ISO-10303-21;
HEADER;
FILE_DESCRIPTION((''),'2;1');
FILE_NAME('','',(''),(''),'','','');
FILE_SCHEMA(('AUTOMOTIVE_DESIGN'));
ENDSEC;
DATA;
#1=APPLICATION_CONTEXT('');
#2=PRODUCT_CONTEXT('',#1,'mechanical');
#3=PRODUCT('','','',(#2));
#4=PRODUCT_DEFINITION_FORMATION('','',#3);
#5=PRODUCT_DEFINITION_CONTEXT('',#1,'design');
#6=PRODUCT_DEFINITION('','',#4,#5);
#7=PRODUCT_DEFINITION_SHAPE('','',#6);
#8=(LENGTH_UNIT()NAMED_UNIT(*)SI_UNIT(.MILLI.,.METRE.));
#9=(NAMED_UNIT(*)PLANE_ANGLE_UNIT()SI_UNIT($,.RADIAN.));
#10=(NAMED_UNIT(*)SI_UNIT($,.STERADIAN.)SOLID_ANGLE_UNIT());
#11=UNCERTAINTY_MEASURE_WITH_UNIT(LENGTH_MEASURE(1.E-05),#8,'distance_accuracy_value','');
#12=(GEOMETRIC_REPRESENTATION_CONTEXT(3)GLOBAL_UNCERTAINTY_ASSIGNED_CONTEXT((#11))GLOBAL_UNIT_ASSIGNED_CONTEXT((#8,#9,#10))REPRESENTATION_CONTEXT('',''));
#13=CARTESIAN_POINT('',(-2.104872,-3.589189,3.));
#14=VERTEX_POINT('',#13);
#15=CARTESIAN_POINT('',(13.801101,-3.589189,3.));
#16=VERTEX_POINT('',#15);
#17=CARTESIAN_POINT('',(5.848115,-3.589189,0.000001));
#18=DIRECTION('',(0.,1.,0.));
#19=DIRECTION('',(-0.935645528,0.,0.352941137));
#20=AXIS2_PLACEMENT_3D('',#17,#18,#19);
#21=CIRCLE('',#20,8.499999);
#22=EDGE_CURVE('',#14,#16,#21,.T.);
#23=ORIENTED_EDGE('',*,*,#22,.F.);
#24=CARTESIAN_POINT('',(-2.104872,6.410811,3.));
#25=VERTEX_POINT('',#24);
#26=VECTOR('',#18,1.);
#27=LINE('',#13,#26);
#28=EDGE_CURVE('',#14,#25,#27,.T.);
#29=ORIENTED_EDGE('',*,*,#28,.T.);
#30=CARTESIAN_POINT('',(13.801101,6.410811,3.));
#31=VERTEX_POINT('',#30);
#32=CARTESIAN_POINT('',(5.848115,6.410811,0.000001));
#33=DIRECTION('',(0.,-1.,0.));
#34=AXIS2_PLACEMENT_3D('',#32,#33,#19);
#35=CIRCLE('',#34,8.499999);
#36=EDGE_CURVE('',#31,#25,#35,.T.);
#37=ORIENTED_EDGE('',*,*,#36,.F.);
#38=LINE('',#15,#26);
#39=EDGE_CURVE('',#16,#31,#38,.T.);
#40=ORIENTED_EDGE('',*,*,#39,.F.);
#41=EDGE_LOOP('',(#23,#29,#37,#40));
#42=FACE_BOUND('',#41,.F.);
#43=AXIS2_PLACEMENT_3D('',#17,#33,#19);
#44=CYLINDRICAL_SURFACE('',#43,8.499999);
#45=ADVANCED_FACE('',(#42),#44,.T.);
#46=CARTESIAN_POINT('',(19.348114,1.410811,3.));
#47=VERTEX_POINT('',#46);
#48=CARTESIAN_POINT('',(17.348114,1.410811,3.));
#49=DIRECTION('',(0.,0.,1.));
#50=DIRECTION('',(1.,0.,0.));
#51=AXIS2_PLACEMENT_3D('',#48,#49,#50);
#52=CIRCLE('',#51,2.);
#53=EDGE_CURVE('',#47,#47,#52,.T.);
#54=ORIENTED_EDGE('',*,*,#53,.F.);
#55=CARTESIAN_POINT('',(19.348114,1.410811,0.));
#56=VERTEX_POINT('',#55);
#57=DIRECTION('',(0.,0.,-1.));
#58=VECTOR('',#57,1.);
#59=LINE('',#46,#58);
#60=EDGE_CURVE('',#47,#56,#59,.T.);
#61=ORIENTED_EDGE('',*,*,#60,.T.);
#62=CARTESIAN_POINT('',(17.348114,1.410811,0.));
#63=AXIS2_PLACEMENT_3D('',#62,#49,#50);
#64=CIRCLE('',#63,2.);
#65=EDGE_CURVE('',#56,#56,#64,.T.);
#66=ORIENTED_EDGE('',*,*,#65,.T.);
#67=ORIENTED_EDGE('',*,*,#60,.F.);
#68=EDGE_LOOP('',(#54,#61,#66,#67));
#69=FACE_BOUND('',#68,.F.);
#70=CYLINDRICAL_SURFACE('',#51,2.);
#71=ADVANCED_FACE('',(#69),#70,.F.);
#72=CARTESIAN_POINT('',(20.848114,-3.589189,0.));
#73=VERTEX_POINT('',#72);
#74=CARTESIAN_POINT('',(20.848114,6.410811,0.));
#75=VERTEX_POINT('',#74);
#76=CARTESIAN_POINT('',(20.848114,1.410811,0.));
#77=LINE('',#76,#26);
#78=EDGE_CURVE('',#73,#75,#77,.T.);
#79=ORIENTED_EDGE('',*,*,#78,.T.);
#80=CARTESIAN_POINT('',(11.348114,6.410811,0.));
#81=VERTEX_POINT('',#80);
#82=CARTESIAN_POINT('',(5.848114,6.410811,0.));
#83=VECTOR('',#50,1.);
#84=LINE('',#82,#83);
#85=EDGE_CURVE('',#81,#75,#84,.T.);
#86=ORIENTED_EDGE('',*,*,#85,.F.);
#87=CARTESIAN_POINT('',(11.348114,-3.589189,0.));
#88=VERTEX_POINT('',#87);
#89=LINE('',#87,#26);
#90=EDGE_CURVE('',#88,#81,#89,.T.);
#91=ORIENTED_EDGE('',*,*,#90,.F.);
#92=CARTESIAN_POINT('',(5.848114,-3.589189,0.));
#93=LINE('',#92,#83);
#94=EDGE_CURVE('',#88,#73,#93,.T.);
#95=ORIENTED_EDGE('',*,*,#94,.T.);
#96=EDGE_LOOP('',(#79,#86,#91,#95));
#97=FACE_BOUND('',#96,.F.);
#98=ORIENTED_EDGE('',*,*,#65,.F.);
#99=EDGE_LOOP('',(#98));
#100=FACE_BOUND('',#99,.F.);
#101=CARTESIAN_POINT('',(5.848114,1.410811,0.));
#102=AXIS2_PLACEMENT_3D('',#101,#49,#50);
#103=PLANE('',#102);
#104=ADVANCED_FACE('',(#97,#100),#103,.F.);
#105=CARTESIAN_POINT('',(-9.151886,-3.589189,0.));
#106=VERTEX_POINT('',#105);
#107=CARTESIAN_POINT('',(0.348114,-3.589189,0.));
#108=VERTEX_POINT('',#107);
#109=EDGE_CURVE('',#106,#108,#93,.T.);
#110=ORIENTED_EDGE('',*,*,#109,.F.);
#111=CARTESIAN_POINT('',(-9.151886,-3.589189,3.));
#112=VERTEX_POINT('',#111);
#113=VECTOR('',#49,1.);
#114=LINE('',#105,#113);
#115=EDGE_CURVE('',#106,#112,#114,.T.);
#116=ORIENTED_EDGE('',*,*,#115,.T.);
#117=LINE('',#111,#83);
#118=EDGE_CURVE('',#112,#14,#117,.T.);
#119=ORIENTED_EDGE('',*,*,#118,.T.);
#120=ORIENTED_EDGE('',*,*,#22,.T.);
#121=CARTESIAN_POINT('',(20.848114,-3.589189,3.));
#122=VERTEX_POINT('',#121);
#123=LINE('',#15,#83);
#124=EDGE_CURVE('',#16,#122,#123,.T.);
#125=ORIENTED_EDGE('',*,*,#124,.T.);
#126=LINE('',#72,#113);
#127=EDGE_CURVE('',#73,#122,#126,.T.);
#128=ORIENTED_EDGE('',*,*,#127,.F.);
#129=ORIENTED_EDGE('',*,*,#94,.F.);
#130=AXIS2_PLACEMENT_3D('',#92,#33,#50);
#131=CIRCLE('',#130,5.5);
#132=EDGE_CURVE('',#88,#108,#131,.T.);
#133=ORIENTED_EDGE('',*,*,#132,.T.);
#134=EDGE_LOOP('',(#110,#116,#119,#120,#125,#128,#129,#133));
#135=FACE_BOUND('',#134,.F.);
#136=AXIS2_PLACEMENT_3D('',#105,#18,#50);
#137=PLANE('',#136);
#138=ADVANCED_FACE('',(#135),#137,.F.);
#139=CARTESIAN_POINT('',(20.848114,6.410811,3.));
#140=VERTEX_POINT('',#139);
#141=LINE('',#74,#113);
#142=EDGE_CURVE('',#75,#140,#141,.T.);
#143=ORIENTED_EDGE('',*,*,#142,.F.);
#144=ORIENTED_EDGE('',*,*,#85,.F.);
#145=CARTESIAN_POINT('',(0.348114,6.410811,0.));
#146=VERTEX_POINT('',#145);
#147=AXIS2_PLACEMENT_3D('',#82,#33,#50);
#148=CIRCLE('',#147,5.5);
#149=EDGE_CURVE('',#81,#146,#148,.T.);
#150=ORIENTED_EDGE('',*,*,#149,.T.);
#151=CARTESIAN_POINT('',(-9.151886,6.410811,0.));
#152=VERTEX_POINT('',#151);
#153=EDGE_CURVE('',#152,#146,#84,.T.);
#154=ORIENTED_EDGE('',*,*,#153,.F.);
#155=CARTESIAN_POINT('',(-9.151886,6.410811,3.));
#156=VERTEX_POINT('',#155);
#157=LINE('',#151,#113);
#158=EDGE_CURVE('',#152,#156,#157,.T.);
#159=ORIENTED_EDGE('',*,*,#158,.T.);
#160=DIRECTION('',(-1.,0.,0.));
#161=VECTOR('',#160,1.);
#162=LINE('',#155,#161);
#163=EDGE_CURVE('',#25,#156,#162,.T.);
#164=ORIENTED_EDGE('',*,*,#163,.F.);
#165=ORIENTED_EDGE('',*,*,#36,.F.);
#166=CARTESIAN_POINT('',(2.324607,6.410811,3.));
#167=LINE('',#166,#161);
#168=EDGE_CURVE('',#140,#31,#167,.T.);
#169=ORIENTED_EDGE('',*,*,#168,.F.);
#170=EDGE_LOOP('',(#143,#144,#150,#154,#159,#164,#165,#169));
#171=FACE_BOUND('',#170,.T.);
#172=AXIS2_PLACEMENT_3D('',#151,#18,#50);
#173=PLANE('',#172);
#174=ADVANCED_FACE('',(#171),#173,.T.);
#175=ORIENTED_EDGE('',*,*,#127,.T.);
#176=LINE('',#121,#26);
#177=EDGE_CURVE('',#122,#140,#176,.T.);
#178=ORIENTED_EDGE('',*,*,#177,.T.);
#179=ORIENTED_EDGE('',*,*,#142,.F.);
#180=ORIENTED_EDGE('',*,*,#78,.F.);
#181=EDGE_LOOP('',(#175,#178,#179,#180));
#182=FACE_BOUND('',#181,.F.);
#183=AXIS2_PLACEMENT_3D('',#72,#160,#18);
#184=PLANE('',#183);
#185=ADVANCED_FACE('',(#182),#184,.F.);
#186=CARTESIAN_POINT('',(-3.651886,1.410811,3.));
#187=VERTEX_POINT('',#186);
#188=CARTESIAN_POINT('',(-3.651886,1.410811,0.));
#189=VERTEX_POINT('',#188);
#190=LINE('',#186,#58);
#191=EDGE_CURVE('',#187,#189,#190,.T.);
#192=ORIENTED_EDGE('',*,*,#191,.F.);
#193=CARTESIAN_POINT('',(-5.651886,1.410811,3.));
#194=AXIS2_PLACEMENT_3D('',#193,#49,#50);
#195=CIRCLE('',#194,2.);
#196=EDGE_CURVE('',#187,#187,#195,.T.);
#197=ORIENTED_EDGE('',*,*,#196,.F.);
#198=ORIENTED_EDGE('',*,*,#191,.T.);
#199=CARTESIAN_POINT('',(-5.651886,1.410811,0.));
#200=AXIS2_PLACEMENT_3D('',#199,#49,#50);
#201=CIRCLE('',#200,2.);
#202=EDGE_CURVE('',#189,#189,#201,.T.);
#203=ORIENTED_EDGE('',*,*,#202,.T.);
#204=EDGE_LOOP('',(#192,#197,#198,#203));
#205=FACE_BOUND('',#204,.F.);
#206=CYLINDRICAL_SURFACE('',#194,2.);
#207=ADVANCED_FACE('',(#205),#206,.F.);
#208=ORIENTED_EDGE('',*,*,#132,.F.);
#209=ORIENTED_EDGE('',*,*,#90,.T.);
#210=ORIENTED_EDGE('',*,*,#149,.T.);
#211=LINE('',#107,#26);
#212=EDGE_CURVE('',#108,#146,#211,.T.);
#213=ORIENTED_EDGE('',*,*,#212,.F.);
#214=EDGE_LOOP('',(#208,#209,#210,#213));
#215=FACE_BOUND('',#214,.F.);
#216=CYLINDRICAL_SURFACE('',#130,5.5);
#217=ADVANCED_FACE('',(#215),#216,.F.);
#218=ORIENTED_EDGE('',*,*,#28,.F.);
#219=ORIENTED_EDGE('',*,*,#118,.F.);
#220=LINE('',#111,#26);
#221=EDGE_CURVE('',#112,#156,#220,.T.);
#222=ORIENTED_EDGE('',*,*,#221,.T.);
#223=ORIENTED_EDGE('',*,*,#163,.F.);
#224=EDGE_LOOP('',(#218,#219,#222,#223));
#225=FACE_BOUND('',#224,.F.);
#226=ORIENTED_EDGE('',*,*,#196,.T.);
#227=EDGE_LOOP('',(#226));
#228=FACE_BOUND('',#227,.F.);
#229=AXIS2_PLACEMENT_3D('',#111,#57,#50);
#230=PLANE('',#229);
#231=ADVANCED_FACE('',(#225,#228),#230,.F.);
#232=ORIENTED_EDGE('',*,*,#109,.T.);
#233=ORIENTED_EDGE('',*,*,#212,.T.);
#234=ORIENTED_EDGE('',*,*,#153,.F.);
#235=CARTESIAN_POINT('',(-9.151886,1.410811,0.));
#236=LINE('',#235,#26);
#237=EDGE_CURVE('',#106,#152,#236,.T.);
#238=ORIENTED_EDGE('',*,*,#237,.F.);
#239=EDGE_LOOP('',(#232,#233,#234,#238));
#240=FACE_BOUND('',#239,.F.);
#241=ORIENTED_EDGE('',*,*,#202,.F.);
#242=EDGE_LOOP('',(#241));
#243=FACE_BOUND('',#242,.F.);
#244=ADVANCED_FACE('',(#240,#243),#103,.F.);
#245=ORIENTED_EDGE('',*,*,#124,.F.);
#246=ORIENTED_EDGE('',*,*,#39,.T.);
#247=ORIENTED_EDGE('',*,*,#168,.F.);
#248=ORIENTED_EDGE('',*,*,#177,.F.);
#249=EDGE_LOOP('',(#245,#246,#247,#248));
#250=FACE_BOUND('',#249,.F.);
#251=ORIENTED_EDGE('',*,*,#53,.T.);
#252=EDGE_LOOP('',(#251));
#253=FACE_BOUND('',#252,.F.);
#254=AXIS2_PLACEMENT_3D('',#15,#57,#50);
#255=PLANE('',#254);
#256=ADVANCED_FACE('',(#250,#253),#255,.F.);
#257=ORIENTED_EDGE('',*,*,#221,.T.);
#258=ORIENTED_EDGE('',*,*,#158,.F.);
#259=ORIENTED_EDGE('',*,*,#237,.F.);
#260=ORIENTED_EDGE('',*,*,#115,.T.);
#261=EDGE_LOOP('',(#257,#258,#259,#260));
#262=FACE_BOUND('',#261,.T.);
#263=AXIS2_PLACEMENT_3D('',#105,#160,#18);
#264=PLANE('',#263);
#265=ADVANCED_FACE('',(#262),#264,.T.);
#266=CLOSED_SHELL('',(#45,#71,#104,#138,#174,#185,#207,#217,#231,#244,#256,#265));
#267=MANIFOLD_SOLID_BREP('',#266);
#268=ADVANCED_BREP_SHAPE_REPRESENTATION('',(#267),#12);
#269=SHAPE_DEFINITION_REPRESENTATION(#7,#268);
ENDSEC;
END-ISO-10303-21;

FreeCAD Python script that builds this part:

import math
import FreeCAD as App
import Part
import Sketcher
from FreeCAD import Vector


def add_polygon(sketch, points):
    """Adds a closed chain of lines whose ends are joined by coincident constraints."""
    first, n = sketch.GeometryCount, len(points)
    for a, b in zip(points, points[1:] + points[:1]):
        sketch.addGeometry(Part.LineSegment(App.Vector(*a, 0), App.Vector(*b, 0)), False)
    for i in range(n):
        sketch.addConstraint(Sketcher.Constraint("Coincident", first + i, 2, first + (i + 1) % n, 1))

doc = App.newDocument("Part")
body = doc.addObject("PartDesign::Body", "Body")

# Sketch on XY plane
sketch1 = body.newObject("Sketcher::SketchObject", "Sketch")
sketch1.AttachmentSupport = (doc.getObject("XY_Plane"), [""])
sketch1.MapMode = "FlatFace"
add_polygon(sketch1, [(-9, 6), (-9, -4), (21, -4), (21, 6)])  # lines 0-3
sketch1.addConstraint([
    Sketcher.Constraint("Vertical", 0),
    Sketcher.Constraint("Horizontal", 1),
    Sketcher.Constraint("Vertical", 2),
    Sketcher.Constraint("Horizontal", 3),
    Sketcher.Constraint("DistanceX", 1, 1, 1, 2, 30.0),
    Sketcher.Constraint("DistanceY", 0, 2, 0, 1, 10.0),
    Sketcher.Constraint("DistanceY", 0, 2, -1, 1, 3.589189),
    Sketcher.Constraint("DistanceX", 0, 2, -1, 1, 9.151886),
])
pad1 = body.newObject("PartDesign::Pad", "Pad")
pad1.Profile = sketch1
pad1.Length = 17

# Sketch on XZ plane
sketch2 = body.newObject("Sketcher::SketchObject", "Sketch001")
sketch2.AttachmentSupport = (doc.getObject("XZ_Plane"), [""])
sketch2.MapMode = "FlatFace"
sketch2.AttachmentOffset = App.Placement(Vector(0, 0, 3.589189), App.Rotation())
sketch2.addGeometry([
    Part.ArcOfCircle(Part.Circle(Vector(6, 0, 0), Vector(0, 0, 1), 8), math.radians(21), math.radians(159)),  # 0
    Part.LineSegment(Vector(14, 3, 0), Vector(21, 3, 0)),  # 1
    Part.LineSegment(Vector(21, 3, 0), Vector(21, 17, 0)),  # 2
    Part.LineSegment(Vector(21, 17, 0), Vector(-9, 17, 0)),  # 3
    Part.LineSegment(Vector(-9, 17, 0), Vector(-9, 3, 0)),  # 4
    Part.LineSegment(Vector(-9, 3, 0), Vector(-2, 3, 0)),  # 5
    Part.LineSegment(Vector(0, 0, 0), Vector(11, 0, 0)),  # 6
    Part.ArcOfCircle(Part.Circle(Vector(6, 0, 0), Vector(0, 0, 1), 6), math.radians(0), math.radians(180)),  # 7
], False)
sketch2.addConstraint([
    Sketcher.Constraint("Coincident", 0, 1, 1, 1),
    Sketcher.Constraint("Coincident", 1, 2, 2, 1),
    Sketcher.Constraint("Coincident", 2, 2, 3, 1),
    Sketcher.Constraint("Coincident", 3, 2, 4, 1),
    Sketcher.Constraint("Coincident", 4, 2, 5, 1),
    Sketcher.Constraint("Coincident", 5, 2, 0, 2),
    Sketcher.Constraint("Coincident", 6, 1, 7, 2),
    Sketcher.Constraint("Coincident", 7, 1, 6, 2),
    Sketcher.Constraint("Horizontal", 1),
    Sketcher.Constraint("Vertical", 2),
    Sketcher.Constraint("Horizontal", 3),
    Sketcher.Constraint("Vertical", 4),
    Sketcher.Constraint("Horizontal", 5),
    Sketcher.Constraint("Horizontal", 6),
    Sketcher.Constraint("Coincident", 7, 3, 0, 3),
    Sketcher.Constraint("PointOnObject", 0, 3, -1),
    Sketcher.Constraint("PointOnObject", 6, 1, -1),
    Sketcher.Constraint("Horizontal", 1, 2, 4, 2),
    Sketcher.Constraint("Equal", 1, 5),
    Sketcher.Constraint("Radius", 0, 8.499999),
    Sketcher.Constraint("Radius", 7, 5.5),
    Sketcher.Constraint("DistanceX", 3, 2, 3, 1, 30.0),
    Sketcher.Constraint("DistanceY", 2, 1, 2, 2, 14.0),
    Sketcher.Constraint("DistanceY", -1, 1, 0, 1, 3.0),
    Sketcher.Constraint("DistanceX", -1, 1, 0, 1, 13.801101),
])
pocket1 = body.newObject("PartDesign::Pocket", "Pocket")
pocket1.Profile = sketch2
pocket1.Length = 25

# Sketch on XY plane
sketch3 = body.newObject("Sketcher::SketchObject", "Sketch002")
sketch3.AttachmentSupport = (doc.getObject("XY_Plane"), [""])
sketch3.MapMode = "FlatFace"
sketch3.AttachmentOffset = App.Placement(Vector(0, 0, 3), App.Rotation())
sketch3.addGeometry([
    Part.Circle(Vector(-5.7, 1.4, 0), Vector(0, 0, 1), 2),
    Part.Circle(Vector(17.3, 1.4, 0), Vector(0, 0, 1), 2),
], False)
sketch3.addConstraint([
    Sketcher.Constraint("Equal", 0, 1),
    Sketcher.Constraint("Horizontal", 0, 3, 1, 3),
    Sketcher.Constraint("Diameter", 0, 4.0),
    Sketcher.Constraint("DistanceX", 0, 3, 1, 3, 23.0),
    Sketcher.Constraint("DistanceY", -1, 1, 0, 3, 1.410811),
    Sketcher.Constraint("DistanceX", 0, 3, -1, 1, 5.651886),
])
pocket2 = body.newObject("PartDesign::Pocket", "Pocket001")
pocket2.Profile = sketch3
pocket2.Length = 25

doc.recompute()
